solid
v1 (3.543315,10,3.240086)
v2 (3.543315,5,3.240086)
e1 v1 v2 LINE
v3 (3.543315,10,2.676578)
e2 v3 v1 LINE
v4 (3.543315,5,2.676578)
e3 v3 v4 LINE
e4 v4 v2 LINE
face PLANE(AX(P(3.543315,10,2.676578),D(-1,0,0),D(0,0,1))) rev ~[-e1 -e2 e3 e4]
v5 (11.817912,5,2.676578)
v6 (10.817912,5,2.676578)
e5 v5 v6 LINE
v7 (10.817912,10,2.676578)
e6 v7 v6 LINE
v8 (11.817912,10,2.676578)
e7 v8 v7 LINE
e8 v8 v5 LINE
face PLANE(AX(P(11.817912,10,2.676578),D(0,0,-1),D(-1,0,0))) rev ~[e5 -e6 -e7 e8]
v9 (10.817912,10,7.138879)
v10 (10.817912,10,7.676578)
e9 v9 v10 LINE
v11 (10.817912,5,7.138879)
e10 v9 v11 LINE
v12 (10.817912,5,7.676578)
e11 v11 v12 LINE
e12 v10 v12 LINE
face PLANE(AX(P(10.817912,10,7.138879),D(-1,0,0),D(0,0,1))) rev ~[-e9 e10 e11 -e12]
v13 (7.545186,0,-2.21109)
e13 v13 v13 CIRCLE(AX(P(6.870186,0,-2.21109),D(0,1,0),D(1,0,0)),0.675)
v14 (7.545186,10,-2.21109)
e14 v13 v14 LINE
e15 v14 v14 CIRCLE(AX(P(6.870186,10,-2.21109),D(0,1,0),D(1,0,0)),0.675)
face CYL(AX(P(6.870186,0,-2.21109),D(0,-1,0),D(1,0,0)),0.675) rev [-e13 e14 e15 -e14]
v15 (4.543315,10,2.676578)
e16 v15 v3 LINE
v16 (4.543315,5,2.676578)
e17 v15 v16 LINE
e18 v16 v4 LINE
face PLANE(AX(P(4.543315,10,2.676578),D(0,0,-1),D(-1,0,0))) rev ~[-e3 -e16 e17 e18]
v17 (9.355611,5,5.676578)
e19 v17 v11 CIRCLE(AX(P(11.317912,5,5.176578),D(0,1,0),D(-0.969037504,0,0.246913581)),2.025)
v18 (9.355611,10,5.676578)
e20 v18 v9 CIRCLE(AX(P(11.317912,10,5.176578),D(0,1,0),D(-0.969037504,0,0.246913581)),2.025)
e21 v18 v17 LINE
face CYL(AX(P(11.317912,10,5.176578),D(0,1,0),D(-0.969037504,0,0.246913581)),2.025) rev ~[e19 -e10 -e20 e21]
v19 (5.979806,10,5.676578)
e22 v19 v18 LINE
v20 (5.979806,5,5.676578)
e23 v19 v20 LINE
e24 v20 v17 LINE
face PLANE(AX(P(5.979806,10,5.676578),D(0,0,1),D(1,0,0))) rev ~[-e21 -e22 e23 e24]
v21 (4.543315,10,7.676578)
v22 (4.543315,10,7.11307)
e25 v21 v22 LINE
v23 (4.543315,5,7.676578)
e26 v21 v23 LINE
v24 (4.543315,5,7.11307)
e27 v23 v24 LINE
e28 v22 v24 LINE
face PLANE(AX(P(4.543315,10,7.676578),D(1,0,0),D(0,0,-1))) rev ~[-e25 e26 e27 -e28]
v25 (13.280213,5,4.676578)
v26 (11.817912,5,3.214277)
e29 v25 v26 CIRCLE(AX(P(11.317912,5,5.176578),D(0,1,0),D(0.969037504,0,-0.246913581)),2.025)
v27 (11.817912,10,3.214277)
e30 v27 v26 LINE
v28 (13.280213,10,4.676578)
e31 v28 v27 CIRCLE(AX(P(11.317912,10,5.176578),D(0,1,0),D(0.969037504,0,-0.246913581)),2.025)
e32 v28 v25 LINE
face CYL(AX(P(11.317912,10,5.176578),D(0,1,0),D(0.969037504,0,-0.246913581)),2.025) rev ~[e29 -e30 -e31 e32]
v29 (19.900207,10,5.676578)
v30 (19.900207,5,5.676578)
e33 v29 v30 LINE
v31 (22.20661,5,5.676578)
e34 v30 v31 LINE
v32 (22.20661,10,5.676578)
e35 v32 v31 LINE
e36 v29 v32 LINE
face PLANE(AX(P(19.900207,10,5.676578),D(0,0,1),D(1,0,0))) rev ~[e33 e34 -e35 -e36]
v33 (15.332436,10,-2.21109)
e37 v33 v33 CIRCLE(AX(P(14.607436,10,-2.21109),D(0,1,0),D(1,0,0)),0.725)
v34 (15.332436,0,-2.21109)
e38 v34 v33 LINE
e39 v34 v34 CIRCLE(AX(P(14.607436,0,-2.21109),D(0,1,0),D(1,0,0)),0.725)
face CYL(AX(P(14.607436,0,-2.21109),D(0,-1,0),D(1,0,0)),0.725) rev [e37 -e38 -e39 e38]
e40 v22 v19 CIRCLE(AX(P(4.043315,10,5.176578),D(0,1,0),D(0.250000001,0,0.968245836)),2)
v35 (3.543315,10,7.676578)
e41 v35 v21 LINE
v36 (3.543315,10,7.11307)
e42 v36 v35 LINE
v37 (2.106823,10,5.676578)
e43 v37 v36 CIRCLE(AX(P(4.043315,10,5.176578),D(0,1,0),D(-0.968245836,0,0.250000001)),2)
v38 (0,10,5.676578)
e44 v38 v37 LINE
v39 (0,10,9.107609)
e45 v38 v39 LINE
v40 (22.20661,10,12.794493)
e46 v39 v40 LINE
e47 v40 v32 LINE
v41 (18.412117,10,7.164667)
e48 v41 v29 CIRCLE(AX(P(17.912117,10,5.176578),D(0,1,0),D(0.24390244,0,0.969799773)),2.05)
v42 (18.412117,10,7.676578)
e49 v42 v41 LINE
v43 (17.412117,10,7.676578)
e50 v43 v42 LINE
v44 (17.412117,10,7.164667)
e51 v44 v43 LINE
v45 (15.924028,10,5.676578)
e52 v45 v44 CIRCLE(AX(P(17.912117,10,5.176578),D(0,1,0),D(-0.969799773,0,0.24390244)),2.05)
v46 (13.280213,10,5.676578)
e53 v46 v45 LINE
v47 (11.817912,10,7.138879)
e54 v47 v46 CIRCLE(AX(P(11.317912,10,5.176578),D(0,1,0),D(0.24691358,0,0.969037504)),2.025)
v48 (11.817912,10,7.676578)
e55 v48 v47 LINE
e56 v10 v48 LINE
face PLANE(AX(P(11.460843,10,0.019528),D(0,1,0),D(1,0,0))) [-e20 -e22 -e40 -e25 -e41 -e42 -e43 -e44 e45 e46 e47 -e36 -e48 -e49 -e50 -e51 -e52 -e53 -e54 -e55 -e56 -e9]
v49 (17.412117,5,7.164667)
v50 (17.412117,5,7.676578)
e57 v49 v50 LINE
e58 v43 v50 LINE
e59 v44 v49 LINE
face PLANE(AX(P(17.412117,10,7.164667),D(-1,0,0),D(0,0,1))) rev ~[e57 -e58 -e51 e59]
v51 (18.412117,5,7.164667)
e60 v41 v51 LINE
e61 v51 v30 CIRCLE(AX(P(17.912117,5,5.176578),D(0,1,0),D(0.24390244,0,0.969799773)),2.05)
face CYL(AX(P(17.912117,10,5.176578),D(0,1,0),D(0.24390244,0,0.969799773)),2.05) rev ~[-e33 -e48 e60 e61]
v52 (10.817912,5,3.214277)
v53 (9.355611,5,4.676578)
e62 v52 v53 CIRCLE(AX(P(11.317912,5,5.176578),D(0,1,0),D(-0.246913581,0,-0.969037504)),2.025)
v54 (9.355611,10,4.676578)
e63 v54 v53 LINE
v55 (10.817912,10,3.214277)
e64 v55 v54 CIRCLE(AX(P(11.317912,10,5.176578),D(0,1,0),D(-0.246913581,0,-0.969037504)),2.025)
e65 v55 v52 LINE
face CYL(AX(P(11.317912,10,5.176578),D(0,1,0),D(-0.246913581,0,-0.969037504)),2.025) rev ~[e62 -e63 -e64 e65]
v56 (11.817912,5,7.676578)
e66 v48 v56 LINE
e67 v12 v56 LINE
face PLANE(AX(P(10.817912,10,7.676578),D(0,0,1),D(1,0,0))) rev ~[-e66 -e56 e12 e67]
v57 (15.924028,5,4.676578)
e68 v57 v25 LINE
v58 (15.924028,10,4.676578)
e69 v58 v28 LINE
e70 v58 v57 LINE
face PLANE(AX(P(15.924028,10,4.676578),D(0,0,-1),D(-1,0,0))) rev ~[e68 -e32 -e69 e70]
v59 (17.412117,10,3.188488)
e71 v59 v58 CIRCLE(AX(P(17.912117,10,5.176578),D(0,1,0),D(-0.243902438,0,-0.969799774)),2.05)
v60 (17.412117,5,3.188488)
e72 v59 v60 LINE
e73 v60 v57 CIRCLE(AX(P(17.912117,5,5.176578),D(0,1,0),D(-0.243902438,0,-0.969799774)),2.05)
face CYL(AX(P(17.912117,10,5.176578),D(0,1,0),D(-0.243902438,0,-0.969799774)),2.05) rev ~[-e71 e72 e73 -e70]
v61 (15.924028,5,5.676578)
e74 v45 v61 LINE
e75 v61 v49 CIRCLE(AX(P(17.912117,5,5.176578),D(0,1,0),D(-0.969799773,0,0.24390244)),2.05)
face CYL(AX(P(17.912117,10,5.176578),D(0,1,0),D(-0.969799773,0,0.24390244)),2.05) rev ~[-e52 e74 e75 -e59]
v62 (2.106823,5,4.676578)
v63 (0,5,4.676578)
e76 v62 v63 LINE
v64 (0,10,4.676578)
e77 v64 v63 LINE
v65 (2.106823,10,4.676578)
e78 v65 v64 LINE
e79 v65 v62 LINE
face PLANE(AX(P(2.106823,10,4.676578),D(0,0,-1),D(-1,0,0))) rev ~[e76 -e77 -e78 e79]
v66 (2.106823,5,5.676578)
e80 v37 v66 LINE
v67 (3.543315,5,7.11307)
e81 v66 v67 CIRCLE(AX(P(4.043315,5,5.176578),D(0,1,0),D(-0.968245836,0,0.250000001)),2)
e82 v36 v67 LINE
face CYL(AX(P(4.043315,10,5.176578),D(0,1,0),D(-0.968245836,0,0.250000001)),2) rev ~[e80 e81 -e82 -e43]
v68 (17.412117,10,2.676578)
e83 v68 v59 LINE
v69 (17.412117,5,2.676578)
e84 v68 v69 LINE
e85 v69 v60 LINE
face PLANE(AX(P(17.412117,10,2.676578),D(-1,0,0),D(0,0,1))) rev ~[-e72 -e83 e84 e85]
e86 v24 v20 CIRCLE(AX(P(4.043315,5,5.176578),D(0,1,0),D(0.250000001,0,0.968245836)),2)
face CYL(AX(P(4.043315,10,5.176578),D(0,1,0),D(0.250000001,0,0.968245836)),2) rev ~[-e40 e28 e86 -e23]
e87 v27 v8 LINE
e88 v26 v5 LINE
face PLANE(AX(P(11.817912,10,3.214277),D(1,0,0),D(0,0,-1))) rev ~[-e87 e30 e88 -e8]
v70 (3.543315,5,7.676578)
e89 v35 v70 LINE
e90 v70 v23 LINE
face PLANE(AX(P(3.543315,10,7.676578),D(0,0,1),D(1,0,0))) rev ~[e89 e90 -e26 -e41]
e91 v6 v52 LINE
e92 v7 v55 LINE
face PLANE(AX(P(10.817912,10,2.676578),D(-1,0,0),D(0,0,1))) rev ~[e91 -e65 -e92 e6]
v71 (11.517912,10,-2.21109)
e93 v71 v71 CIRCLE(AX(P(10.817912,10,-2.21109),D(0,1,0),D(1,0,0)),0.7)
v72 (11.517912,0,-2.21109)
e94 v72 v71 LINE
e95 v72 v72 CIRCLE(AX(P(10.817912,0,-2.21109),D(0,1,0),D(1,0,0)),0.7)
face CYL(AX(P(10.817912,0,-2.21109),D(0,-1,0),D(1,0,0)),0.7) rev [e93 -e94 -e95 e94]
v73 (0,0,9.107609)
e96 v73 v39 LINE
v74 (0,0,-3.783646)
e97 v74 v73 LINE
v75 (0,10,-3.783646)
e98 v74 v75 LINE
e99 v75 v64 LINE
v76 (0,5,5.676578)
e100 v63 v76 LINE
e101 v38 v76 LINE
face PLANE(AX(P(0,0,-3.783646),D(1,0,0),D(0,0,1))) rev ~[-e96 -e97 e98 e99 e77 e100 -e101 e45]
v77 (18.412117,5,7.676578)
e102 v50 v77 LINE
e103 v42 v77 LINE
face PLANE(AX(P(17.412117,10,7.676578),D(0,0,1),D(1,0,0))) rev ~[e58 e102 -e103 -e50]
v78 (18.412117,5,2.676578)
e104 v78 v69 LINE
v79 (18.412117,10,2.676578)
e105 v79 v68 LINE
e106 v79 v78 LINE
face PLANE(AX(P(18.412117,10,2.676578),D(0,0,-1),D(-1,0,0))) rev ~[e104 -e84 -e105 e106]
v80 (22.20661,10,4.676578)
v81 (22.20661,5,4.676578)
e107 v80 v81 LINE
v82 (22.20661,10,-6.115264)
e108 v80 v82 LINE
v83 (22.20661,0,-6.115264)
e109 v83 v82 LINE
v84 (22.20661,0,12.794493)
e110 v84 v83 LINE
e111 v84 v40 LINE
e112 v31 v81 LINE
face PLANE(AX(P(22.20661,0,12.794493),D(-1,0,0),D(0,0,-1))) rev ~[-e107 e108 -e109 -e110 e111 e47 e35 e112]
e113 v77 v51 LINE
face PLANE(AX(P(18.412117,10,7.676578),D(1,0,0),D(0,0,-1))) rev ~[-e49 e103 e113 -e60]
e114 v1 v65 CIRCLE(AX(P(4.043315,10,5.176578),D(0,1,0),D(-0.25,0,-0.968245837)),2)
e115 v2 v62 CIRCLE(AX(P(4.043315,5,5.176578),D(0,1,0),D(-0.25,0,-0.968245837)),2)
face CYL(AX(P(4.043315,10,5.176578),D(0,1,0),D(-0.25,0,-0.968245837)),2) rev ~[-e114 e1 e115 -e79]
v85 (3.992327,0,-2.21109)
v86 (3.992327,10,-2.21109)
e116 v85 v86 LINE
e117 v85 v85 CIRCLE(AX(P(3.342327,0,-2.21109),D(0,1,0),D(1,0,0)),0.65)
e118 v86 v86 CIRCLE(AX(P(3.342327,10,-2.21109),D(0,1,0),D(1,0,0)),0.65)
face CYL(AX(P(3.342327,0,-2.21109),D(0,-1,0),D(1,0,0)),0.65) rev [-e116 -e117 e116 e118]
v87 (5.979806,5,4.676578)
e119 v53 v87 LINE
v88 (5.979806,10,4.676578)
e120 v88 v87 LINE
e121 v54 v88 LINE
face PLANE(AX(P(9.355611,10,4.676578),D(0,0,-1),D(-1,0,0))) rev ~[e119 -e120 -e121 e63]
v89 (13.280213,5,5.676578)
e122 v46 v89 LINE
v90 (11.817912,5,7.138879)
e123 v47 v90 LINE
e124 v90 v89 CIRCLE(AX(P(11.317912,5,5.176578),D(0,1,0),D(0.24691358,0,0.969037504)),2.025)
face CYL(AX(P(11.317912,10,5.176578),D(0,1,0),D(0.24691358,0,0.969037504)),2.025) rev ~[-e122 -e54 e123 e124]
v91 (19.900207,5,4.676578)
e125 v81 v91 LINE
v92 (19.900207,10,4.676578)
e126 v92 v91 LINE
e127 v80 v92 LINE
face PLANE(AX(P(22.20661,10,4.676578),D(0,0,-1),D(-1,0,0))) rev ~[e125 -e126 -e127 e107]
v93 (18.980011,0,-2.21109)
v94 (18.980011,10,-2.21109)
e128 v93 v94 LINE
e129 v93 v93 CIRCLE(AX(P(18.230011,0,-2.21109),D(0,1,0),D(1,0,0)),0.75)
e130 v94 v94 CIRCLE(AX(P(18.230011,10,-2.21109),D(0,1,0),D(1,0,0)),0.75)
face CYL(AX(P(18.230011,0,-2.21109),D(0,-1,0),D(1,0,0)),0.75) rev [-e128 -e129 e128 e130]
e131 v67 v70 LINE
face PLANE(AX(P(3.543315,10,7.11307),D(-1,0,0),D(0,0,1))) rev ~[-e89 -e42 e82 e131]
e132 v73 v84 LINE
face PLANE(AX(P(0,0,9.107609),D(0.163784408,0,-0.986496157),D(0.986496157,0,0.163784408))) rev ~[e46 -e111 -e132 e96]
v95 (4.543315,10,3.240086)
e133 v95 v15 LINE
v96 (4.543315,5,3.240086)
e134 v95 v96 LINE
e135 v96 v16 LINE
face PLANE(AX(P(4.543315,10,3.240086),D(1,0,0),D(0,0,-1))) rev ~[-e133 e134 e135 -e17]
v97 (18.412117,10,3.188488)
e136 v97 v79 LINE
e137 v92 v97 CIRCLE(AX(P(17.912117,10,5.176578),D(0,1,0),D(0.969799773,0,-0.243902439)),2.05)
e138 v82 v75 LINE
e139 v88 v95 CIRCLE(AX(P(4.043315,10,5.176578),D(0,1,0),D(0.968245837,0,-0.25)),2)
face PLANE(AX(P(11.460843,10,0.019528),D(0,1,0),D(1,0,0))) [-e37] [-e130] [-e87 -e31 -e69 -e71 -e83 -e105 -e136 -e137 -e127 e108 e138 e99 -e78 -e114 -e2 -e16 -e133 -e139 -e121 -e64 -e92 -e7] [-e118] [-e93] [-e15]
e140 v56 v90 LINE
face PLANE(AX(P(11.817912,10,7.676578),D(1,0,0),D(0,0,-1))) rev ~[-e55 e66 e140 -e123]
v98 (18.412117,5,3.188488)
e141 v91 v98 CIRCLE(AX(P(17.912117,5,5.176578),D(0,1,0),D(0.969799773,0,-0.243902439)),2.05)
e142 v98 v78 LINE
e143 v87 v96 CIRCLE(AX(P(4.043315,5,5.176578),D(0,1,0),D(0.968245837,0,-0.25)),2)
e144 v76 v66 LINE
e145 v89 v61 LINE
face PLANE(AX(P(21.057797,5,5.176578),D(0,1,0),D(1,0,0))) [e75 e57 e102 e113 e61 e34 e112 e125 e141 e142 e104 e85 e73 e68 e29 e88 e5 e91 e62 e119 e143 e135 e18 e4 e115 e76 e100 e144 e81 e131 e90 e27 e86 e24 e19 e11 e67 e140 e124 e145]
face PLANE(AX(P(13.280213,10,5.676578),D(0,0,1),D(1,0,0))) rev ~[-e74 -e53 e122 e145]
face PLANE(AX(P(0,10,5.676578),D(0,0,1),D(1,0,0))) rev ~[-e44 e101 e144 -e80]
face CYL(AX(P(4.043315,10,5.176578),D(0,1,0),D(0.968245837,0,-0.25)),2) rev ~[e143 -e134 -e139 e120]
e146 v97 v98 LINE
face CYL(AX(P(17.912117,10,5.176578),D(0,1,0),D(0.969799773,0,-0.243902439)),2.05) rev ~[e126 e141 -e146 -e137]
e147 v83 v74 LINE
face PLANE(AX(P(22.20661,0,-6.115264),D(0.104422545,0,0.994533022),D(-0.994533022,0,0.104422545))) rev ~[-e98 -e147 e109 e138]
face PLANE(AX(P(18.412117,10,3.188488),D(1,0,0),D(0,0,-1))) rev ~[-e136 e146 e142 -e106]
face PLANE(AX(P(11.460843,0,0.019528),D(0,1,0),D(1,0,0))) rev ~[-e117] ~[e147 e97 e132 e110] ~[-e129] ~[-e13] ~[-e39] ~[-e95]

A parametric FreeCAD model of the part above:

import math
import FreeCAD as App
import Part
import Sketcher

V = App.Vector

doc = App.newDocument("Part")
body = doc.addObject("PartDesign::Body", "Body")

# Sketch on XZ plane
sketch1 = body.newObject("Sketcher::SketchObject", "Sketch")
sketch1.AttachmentSupport = (doc.getObject("XZ_Plane"), [""])
sketch1.MapMode = "FlatFace"
sketch1.addGeometry(Part.LineSegment(V(0, 9.1, 0), V(22.2, 12.8, 0)), False)
sketch1.addGeometry(Part.LineSegment(V(22.2, 12.8, 0), V(22.2, -6.1, 0)), False)
sketch1.addGeometry(Part.LineSegment(V(22.2, -6.1, 0), V(0, -3.8, 0)), False)
sketch1.addGeometry(Part.LineSegment(V(0, -3.8, 0), V(0, 9.1, 0)), False)
sketch1.addGeometry(Part.Circle(V(3.3, -2.2, 0), V(0, 0, 1), 0.7), False)
sketch1.addGeometry(Part.Circle(V(6.9, -2.2, 0), V(0, 0, 1), 0.7), False)
sketch1.addGeometry(Part.Circle(V(10.8, -2.2, 0), V(0, 0, 1), 0.7), False)
sketch1.addGeometry(Part.Circle(V(14.6, -2.2, 0), V(0, 0, 1), 0.7), False)
sketch1.addGeometry(Part.Circle(V(18.2, -2.2, 0), V(0, 0, 1), 0.8), False)
sketch1.addConstraint(Sketcher.Constraint("Coincident", 0, 2, 1, 1))
sketch1.addConstraint(Sketcher.Constraint("Coincident", 1, 2, 2, 1))
sketch1.addConstraint(Sketcher.Constraint("Coincident", 2, 2, 3, 1))
sketch1.addConstraint(Sketcher.Constraint("Coincident", 3, 2, 0, 1))
sketch1.addConstraint(Sketcher.Constraint("Vertical", 1))
sketch1.addConstraint(Sketcher.Constraint("Vertical", 3))
sketch1.addConstraint(Sketcher.Constraint("PointOnObject", 2, 2, -2))
sketch1.addConstraint(Sketcher.Constraint("Horizontal", 4, 3, 5, 3))
sketch1.addConstraint(Sketcher.Constraint("Horizontal", 5, 3, 6, 3))
sketch1.addConstraint(Sketcher.Constraint("Horizontal", 6, 3, 7, 3))
sketch1.addConstraint(Sketcher.Constraint("Horizontal", 7, 3, 8, 3))
sketch1.addConstraint(Sketcher.Constraint("Diameter", 4, 1.3))
sketch1.addConstraint(Sketcher.Constraint("Diameter", 6, 1.4))
sketch1.addConstraint(Sketcher.Constraint("Diameter", 8, 1.5))
sketch1.addConstraint(Sketcher.Constraint("Diameter", 5, 1.35))
sketch1.addConstraint(Sketcher.Constraint("Diameter", 7, 1.45))
sketch1.addConstraint(Sketcher.Constraint("DistanceX", 6, 3, 8, 3, 7.412099))
sketch1.addConstraint(Sketcher.Constraint("DistanceX", 8, 3, 0, 2, 3.976599))
sketch1.addConstraint(Sketcher.Constraint("DistanceY", 4, 3, 3, 2, 11.3187))
sketch1.addConstraint(Sketcher.Constraint("Distance", 0, 22.510589))
sketch1.addConstraint(Sketcher.Constraint("Distance", 2, 22.32868))
sketch1.addConstraint(Sketcher.Constraint("DistanceY", 1, 2, 1, 1, 18.909756))
sketch1.addConstraint(Sketcher.Constraint("DistanceY", 3, 1, 3, 2, 12.891255))
sketch1.addConstraint(Sketcher.Constraint("DistanceY", 4, 3, -1, 1, 2.21109))
sketch1.addConstraint(Sketcher.Constraint("DistanceX", 4, 3, 5, 3, 3.527859))
sketch1.addConstraint(Sketcher.Constraint("DistanceX", 5, 3, 7, 3, 7.73725))
sketch1.addConstraint(Sketcher.Constraint("DistanceX", -1, 1, 4, 3, 3.342327))
pad1 = body.newObject("PartDesign::Pad", "Pad")
pad1.Profile = sketch1
pad1.Length = 10
pad1.Reversed = True

# Sketch on XZ plane
sketch2 = body.newObject("Sketcher::SketchObject", "Sketch001")
sketch2.AttachmentSupport = (doc.getObject("XZ_Plane"), [""])
sketch2.MapMode = "FlatFace"
sketch2.AttachmentOffset = App.Placement(V(0, 0, -10), App.Rotation())
sketch2.addGeometry(Part.LineSegment(V(22.2, 5.7, 0), V(22.2, 4.7, 0)), False)
sketch2.addGeometry(Part.LineSegment(V(22.2, 4.7, 0), V(19.9, 4.7, 0)), False)
sketch2.addGeometry(Part.ArcOfCircle(Part.Circle(V(17.9, 5.2, 0), V(0, 0, 1), 2), math.radians(-76), math.radians(-14)), False)
sketch2.addGeometry(Part.LineSegment(V(18.4, 3.2, 0), V(18.4, 2.7, 0)), False)
sketch2.addGeometry(Part.LineSegment(V(18.4, 2.7, 0), V(17.4, 2.7, 0)), False)
sketch2.addGeometry(Part.LineSegment(V(17.4, 2.7, 0), V(17.4, 3.2, 0)), False)
sketch2.addGeometry(Part.ArcOfCircle(Part.Circle(V(17.9, 5.2, 0), V(0, 0, 1), 2), math.radians(-166), math.radians(-104)), False)
sketch2.addGeometry(Part.LineSegment(V(15.9, 4.7, 0), V(13.3, 4.7, 0)), False)
sketch2.addGeometry(Part.ArcOfCircle(Part.Circle(V(11.3, 5.2, 0), V(0, 0, 1), 2), math.radians(-76), math.radians(-14)), False)
sketch2.addGeometry(Part.LineSegment(V(11.8, 3.2, 0), V(11.8, 2.7, 0)), False)
sketch2.addGeometry(Part.LineSegment(V(11.8, 2.7, 0), V(10.8, 2.7, 0)), False)
sketch2.addGeometry(Part.LineSegment(V(10.8, 2.7, 0), V(10.8, 3.2, 0)), False)
sketch2.addGeometry(Part.ArcOfCircle(Part.Circle(V(11.3, 5.2, 0), V(0, 0, 1), 2), math.radians(-166), math.radians(-104)), False)
sketch2.addGeometry(Part.LineSegment(V(9.4, 4.7, 0), V(6, 4.7, 0)), False)
sketch2.addGeometry(Part.ArcOfCircle(Part.Circle(V(4, 5.2, 0), V(0, 0, 1), 2), math.radians(-76), math.radians(-14)), False)
sketch2.addGeometry(Part.LineSegment(V(4.5, 3.2, 0), V(4.5, 2.7, 0)), False)
sketch2.addGeometry(Part.LineSegment(V(4.5, 2.7, 0), V(3.5, 2.7, 0)), False)
sketch2.addGeometry(Part.LineSegment(V(3.5, 2.7, 0), V(3.5, 3.2, 0)), False)
sketch2.addGeometry(Part.ArcOfCircle(Part.Circle(V(4, 5.2, 0), V(0, 0, 1), 2), math.radians(-166), math.radians(-104)), False)
sketch2.addGeometry(Part.LineSegment(V(2.1, 4.7, 0), V(0, 4.7, 0)), False)
sketch2.addGeometry(Part.LineSegment(V(0, 4.7, 0), V(0, 5.7, 0)), False)
sketch2.addGeometry(Part.LineSegment(V(0, 5.7, 0), V(2.1, 5.7, 0)), False)
sketch2.addGeometry(Part.ArcOfCircle(Part.Circle(V(4, 5.2, 0), V(0, 0, 1), 2), math.radians(104), math.radians(166)), False)
sketch2.addGeometry(Part.LineSegment(V(3.5, 7.1, 0), V(3.5, 7.7, 0)), False)
sketch2.addGeometry(Part.LineSegment(V(3.5, 7.7, 0), V(4.5, 7.7, 0)), False)
sketch2.addGeometry(Part.LineSegment(V(4.5, 7.7, 0), V(4.5, 7.1, 0)), False)
sketch2.addGeometry(Part.ArcOfCircle(Part.Circle(V(4, 5.2, 0), V(0, 0, 1), 2), math.radians(14), math.radians(76)), False)
sketch2.addGeometry(Part.LineSegment(V(6, 5.7, 0), V(9.4, 5.7, 0)), False)
sketch2.addGeometry(Part.ArcOfCircle(Part.Circle(V(11.3, 5.2, 0), V(0, 0, 1), 2), math.radians(104), math.radians(166)), False)
sketch2.addGeometry(Part.LineSegment(V(10.8, 7.1, 0), V(10.8, 7.7, 0)), False)
sketch2.addGeometry(Part.LineSegment(V(10.8, 7.7, 0), V(11.8, 7.7, 0)), False)
sketch2.addGeometry(Part.LineSegment(V(11.8, 7.7, 0), V(11.8, 7.1, 0)), False)
sketch2.addGeometry(Part.ArcOfCircle(Part.Circle(V(11.3, 5.2, 0), V(0, 0, 1), 2), math.radians(14), math.radians(76)), False)
sketch2.addGeometry(Part.LineSegment(V(13.3, 5.7, 0), V(15.9, 5.7, 0)), False)
sketch2.addGeometry(Part.ArcOfCircle(Part.Circle(V(17.9, 5.2, 0), V(0, 0, 1), 2.1), math.radians(104), math.radians(166)), False)
sketch2.addGeometry(Part.LineSegment(V(17.4, 7.2, 0), V(17.4, 7.7, 0)), False)
sketch2.addGeometry(Part.LineSegment(V(17.4, 7.7, 0), V(18.4, 7.7, 0)), False)
sketch2.addGeometry(Part.LineSegment(V(18.4, 7.7, 0), V(18.4, 7.2, 0)), False)
sketch2.addGeometry(Part.ArcOfCircle(Part.Circle(V(17.9, 5.2, 0), V(0, 0, 1), 2.1), math.radians(14), math.radians(76)), False)
sketch2.addGeometry(Part.LineSegment(V(19.9, 5.7, 0), V(22.2, 5.7, 0)), False)
sketch2.addConstraint(Sketcher.Constraint("Coincident", 0, 2, 1, 1))
sketch2.addConstraint(Sketcher.Constraint("Coincident", 1, 2, 2, 2))
sketch2.addConstraint(Sketcher.Constraint("Coincident", 2, 1, 3, 1))
sketch2.addConstraint(Sketcher.Constraint("Coincident", 3, 2, 4, 1))
sketch2.addConstraint(Sketcher.Constraint("Coincident", 4, 2, 5, 1))
sketch2.addConstraint(Sketcher.Constraint("Coincident", 5, 2, 6, 2))
sketch2.addConstraint(Sketcher.Constraint("Coincident", 6, 1, 7, 1))
sketch2.addConstraint(Sketcher.Constraint("Coincident", 7, 2, 8, 2))
sketch2.addConstraint(Sketcher.Constraint("Coincident", 8, 1, 9, 1))
sketch2.addConstraint(Sketcher.Constraint("Coincident", 9, 2, 10, 1))
sketch2.addConstraint(Sketcher.Constraint("Coincident", 10, 2, 11, 1))
sketch2.addConstraint(Sketcher.Constraint("Coincident", 11, 2, 12, 2))
sketch2.addConstraint(Sketcher.Constraint("Coincident", 12, 1, 13, 1))
sketch2.addConstraint(Sketcher.Constraint("Coincident", 13, 2, 14, 2))
sketch2.addConstraint(Sketcher.Constraint("Coincident", 14, 1, 15, 1))
sketch2.addConstraint(Sketcher.Constraint("Coincident", 15, 2, 16, 1))
sketch2.addConstraint(Sketcher.Constraint("Coincident", 16, 2, 17, 1))
sketch2.addConstraint(Sketcher.Constraint("Coincident", 17, 2, 18, 2))
sketch2.addConstraint(Sketcher.Constraint("Coincident", 18, 1, 19, 1))
sketch2.addConstraint(Sketcher.Constraint("Coincident", 19, 2, 20, 1))
sketch2.addConstraint(Sketcher.Constraint("Coincident", 20, 2, 21, 1))
sketch2.addConstraint(Sketcher.Constraint("Coincident", 21, 2, 22, 2))
sketch2.addConstraint(Sketcher.Constraint("Coincident", 22, 1, 23, 1))
sketch2.addConstraint(Sketcher.Constraint("Coincident", 23, 2, 24, 1))
sketch2.addConstraint(Sketcher.Constraint("Coincident", 24, 2, 25, 1))
sketch2.addConstraint(Sketcher.Constraint("Coincident", 25, 2, 26, 2))
sketch2.addConstraint(Sketcher.Constraint("Coincident", 26, 1, 27, 1))
sketch2.addConstraint(Sketcher.Constraint("Coincident", 27, 2, 28, 2))
sketch2.addConstraint(Sketcher.Constraint("Coincident", 28, 1, 29, 1))
sketch2.addConstraint(Sketcher.Constraint("Coincident", 29, 2, 30, 1))
sketch2.addConstraint(Sketcher.Constraint("Coincident", 30, 2, 31, 1))
sketch2.addConstraint(Sketcher.Constraint("Coincident", 31, 2, 32, 2))
sketch2.addConstraint(Sketcher.Constraint("Coincident", 32, 1, 33, 1))
sketch2.addConstraint(Sketcher.Constraint("Coincident", 33, 2, 34, 2))
sketch2.addConstraint(Sketcher.Constraint("Coincident", 34, 1, 35, 1))
sketch2.addConstraint(Sketcher.Constraint("Coincident", 35, 2, 36, 1))
sketch2.addConstraint(Sketcher.Constraint("Coincident", 36, 2, 37, 1))
sketch2.addConstraint(Sketcher.Constraint("Coincident", 37, 2, 38, 2))
sketch2.addConstraint(Sketcher.Constraint("Coincident", 38, 1, 39, 1))
sketch2.addConstraint(Sketcher.Constraint("Coincident", 39, 2, 0, 1))
sketch2.addConstraint(Sketcher.Constraint("Vertical", 0))
sketch2.addConstraint(Sketcher.Constraint("Horizontal", 1))
sketch2.addConstraint(Sketcher.Constraint("Vertical", 3))
sketch2.addConstraint(Sketcher.Constraint("Horizontal", 4))
sketch2.addConstraint(Sketcher.Constraint("Vertical", 5))
sketch2.addConstraint(Sketcher.Constraint("Horizontal", 7))
sketch2.addConstraint(Sketcher.Constraint("Vertical", 9))
sketch2.addConstraint(Sketcher.Constraint("Horizontal", 10))
sketch2.addConstraint(Sketcher.Constraint("Vertical", 11))
sketch2.addConstraint(Sketcher.Constraint("Horizontal", 13))
sketch2.addConstraint(Sketcher.Constraint("Vertical", 15))
sketch2.addConstraint(Sketcher.Constraint("Horizontal", 16))
sketch2.addConstraint(Sketcher.Constraint("Vertical", 17))
sketch2.addConstraint(Sketcher.Constraint("Horizontal", 19))
sketch2.addConstraint(Sketcher.Constraint("Vertical", 20))
sketch2.addConstraint(Sketcher.Constraint("Horizontal", 21))
sketch2.addConstraint(Sketcher.Constraint("Vertical", 23))
sketch2.addConstraint(Sketcher.Constraint("Horizontal", 24))
sketch2.addConstraint(Sketcher.Constraint("Vertical", 25))
sketch2.addConstraint(Sketcher.Constraint("Horizontal", 27))
sketch2.addConstraint(Sketcher.Constraint("Vertical", 29))
sketch2.addConstraint(Sketcher.Constraint("Horizontal", 30))
sketch2.addConstraint(Sketcher.Constraint("Vertical", 31))
sketch2.addConstraint(Sketcher.Constraint("Horizontal", 33))
sketch2.addConstraint(Sketcher.Constraint("Vertical", 35))
sketch2.addConstraint(Sketcher.Constraint("Horizontal", 36))
sketch2.addConstraint(Sketcher.Constraint("Vertical", 37))
sketch2.addConstraint(Sketcher.Constraint("Horizontal", 39))
sketch2.addConstraint(Sketcher.Constraint("Coincident", 6, 3, 2, 3))
sketch2.addConstraint(Sketcher.Constraint("Coincident", 12, 3, 8, 3))
sketch2.addConstraint(Sketcher.Constraint("Coincident", 18, 3, 14, 3))
sketch2.addConstraint(Sketcher.Constraint("Coincident", 22, 3, 14, 3))
sketch2.addConstraint(Sketcher.Constraint("Coincident", 26, 3, 14, 3))
sketch2.addConstraint(Sketcher.Constraint("Coincident", 28, 3, 8, 3))
sketch2.addConstraint(Sketcher.Constraint("Coincident", 32, 3, 8, 3))
sketch2.addConstraint(Sketcher.Constraint("Coincident", 34, 3, 2, 3))
sketch2.addConstraint(Sketcher.Constraint("Coincident", 38, 3, 2, 3))
sketch2.addConstraint(Sketcher.Constraint("Equal", 2, 6))
sketch2.addConstraint(Sketcher.Constraint("Equal", 8, 12))
sketch2.addConstraint(Sketcher.Constraint("Equal", 14, 18))
sketch2.addConstraint(Sketcher.Constraint("Equal", 18, 22))
sketch2.addConstraint(Sketcher.Constraint("Equal", 22, 26))
sketch2.addConstraint(Sketcher.Constraint("Equal", 12, 28))
sketch2.addConstraint(Sketcher.Constraint("Equal", 28, 32))
sketch2.addConstraint(Sketcher.Constraint("Equal", 6, 34))
sketch2.addConstraint(Sketcher.Constraint("Equal", 34, 38))
sketch2.addConstraint(Sketcher.Constraint("PointOnObject", 19, 2, -2))
sketch2.addConstraint(Sketcher.Constraint("Horizontal", 6, 3, 8, 3))
sketch2.addConstraint(Sketcher.Constraint("Horizontal", 12, 3, 14, 3))
sketch2.addConstraint(Sketcher.Constraint("Horizontal", 2, 1, 5, 2))
sketch2.addConstraint(Sketcher.Constraint("Horizontal", 1, 2, 6, 1))
sketch2.addConstraint(Sketcher.Constraint("Horizontal", 4, 2, 9, 2))
sketch2.addConstraint(Sketcher.Constraint("Horizontal", 8, 1, 11, 2))
sketch2.addConstraint(Sketcher.Constraint("Horizontal", 7, 2, 12, 1))
sketch2.addConstraint(Sketcher.Constraint("Horizontal", 10, 2, 15, 2))
sketch2.addConstraint(Sketcher.Constraint("Horizontal", 14, 1, 17, 2))
sketch2.addConstraint(Sketcher.Constraint("Horizontal", 13, 2, 18, 1))
sketch2.addConstraint(Sketcher.Constraint("Horizontal", 22, 1, 25, 2))
sketch2.addConstraint(Sketcher.Constraint("Horizontal", 21, 2, 26, 1))
sketch2.addConstraint(Sketcher.Constraint("Horizontal", 24, 2, 29, 2))
sketch2.addConstraint(Sketcher.Constraint("Horizontal", 28, 1, 31, 2))
sketch2.addConstraint(Sketcher.Constraint("Horizontal", 27, 2, 32, 1))
sketch2.addConstraint(Sketcher.Constraint("Horizontal", 30, 2, 35, 2))
sketch2.addConstraint(Sketcher.Constraint("Horizontal", 34, 1, 37, 2))
sketch2.addConstraint(Sketcher.Constraint("Horizontal", 33, 2, 38, 1))
sketch2.addConstraint(Sketcher.Constraint("Vertical", 18, 1, 21, 2))
sketch2.addConstraint(Sketcher.Constraint("Vertical", 17, 2, 22, 1))
sketch2.addConstraint(Sketcher.Constraint("Vertical", 11, 2, 28, 1))
sketch2.addConstraint(Sketcher.Constraint("Vertical", 5, 2, 34, 1))
sketch2.addConstraint(Sketcher.Constraint("Equal", 4, 10))
sketch2.addConstraint(Sketcher.Constraint("Equal", 10, 16))
sketch2.addConstraint(Sketcher.Constraint("Equal", 36, 0))
sketch2.addConstraint(Sketcher.Constraint("Equal", 17, 23))
sketch2.addConstraint(Sketcher.Constraint("Radius", 14, 2.0))
sketch2.addConstraint(Sketcher.Constraint("DistanceX", 4, 2, 4, 1, 1.0))
sketch2.addConstraint(Sketcher.Constraint("Radius", 2, 2.05))
sketch2.addConstraint(Sketcher.Constraint("Radius", 8, 2.025))
sketch2.addConstraint(Sketcher.Constraint("DistanceY", 3, 2, 1, 2, 2.0))
sketch2.addConstraint(Sketcher.Constraint("DistanceX", 1, 2, 1, 1, 2.306403))
sketch2.addConstraint(Sketcher.Constraint("DistanceX", 7, 2, 7, 1, 2.643815))
sketch2.addConstraint(Sketcher.Constraint("DistanceX", 13, 2, 13, 1, 3.375805))
sketch2.addConstraint(Sketcher.Constraint("DistanceX", 19, 2, 19, 1, 2.106823))
sketch2.addConstraint(Sketcher.Constraint("DistanceY", -1, 1, 2, 1, 3.188488))
pocket1 = body.newObject("PartDesign::Pocket", "Pocket")
pocket1.Profile = sketch2
pocket1.Length = 5
pocket1.Reversed = True

doc.recompute()
